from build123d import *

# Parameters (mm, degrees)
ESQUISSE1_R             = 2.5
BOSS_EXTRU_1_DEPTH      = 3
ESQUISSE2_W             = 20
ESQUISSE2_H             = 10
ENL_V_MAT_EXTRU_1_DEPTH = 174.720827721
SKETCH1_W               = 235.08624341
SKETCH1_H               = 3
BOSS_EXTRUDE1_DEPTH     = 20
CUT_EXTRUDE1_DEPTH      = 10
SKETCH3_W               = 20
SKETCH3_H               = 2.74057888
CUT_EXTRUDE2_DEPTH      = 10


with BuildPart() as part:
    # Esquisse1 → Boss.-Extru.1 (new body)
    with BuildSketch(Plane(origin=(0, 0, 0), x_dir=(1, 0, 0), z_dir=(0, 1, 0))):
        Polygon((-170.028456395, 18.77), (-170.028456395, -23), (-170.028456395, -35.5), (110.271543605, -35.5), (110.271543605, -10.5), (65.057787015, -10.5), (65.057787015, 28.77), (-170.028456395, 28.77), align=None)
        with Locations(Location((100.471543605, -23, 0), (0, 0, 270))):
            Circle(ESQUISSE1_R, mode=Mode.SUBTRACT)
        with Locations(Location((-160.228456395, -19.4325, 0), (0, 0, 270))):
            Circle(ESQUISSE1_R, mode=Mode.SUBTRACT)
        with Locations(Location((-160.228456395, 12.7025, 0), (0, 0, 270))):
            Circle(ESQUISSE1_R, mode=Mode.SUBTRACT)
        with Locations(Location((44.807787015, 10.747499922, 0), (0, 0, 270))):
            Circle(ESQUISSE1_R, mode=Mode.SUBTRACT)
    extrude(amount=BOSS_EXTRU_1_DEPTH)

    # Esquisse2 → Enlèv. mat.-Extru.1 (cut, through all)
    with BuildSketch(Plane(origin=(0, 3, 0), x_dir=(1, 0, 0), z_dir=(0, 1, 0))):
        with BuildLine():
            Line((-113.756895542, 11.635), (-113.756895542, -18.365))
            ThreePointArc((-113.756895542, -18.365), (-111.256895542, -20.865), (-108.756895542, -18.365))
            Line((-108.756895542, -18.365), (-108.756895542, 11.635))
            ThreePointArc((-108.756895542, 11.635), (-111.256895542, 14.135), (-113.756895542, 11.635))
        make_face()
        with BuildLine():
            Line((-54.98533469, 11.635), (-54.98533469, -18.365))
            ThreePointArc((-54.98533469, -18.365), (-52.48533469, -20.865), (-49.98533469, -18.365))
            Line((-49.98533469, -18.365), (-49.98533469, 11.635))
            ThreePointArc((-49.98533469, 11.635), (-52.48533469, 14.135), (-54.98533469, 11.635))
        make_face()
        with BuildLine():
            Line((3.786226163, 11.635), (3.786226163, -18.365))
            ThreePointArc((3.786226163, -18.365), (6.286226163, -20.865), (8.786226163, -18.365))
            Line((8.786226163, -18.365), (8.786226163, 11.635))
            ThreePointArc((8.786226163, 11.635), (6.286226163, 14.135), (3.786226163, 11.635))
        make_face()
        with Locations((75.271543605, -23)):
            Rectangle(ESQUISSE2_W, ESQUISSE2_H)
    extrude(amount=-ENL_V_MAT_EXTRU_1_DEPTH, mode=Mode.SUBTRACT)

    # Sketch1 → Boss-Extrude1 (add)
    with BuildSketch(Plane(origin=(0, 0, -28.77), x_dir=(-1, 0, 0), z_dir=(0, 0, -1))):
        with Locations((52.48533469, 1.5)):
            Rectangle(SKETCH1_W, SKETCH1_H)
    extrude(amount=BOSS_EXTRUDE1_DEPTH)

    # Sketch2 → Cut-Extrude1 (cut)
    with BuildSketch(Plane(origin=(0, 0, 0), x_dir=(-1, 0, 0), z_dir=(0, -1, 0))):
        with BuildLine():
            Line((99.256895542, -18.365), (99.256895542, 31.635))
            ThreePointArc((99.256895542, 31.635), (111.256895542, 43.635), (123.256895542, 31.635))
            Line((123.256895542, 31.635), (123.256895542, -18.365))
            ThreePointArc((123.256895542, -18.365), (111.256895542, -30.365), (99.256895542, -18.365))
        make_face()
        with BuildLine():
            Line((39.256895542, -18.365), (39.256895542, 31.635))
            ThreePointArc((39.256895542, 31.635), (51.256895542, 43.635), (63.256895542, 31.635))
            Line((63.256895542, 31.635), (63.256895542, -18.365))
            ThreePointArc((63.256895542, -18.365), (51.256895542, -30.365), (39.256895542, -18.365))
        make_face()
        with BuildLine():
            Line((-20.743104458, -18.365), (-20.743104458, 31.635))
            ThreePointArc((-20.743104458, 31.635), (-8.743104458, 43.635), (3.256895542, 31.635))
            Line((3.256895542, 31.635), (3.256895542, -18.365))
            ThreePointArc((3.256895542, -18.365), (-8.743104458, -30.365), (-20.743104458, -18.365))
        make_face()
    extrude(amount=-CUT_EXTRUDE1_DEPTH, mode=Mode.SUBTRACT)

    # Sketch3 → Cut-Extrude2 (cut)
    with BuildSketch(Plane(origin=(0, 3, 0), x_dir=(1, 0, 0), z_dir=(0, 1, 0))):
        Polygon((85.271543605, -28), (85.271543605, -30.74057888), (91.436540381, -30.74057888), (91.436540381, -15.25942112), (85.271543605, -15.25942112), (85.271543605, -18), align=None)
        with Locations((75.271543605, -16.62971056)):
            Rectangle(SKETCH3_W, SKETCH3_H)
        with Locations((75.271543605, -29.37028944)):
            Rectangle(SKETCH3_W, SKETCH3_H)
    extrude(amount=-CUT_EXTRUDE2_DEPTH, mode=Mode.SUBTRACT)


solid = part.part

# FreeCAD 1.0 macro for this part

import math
import FreeCAD as App
import Part
import Sketcher

V = App.Vector


def add_polygon(sketch, points):
    """Adds a closed chain of lines whose ends are joined by coincident constraints."""
    first, n = sketch.GeometryCount, len(points)
    for a, b in zip(points, points[1:] + points[:1]):
        sketch.addGeometry(Part.LineSegment(App.Vector(*a, 0), App.Vector(*b, 0)), False)
    for i in range(n):
        sketch.addConstraint(Sketcher.Constraint("Coincident", first + i, 2, first + (i + 1) % n, 1))

doc = App.newDocument("Part")
params = doc.addObject("Spreadsheet::Sheet", "Params")
for row, (alias, value) in enumerate([
    ("sketch1_diameter", "5 mm"),
    ("sketch1_height", "25 mm"),
    ("sketch1_width", "280.3 mm"),
    ("sketch1_height2", "39.27 mm"),
    ("pad1_length", "3 mm"),
    ("sketch2_radius", "2.5 mm"),
    ("sketch2_width", "20 mm"),
    ("sketch2_height", "30 mm"),
    ("sketch2_height2", "10 mm"),
    ("sketch3_height", "3 mm"),
    ("pad2_length", "20 mm"),
    ("sketch4_radius", "12 mm"),
    ("sketch4_height", "50 mm"),
    ("pocket2_length", "10 mm"),
    ("sketch5_width", "20 mm"),
    ("sketch5_height", "10 mm"),
    ("pocket3_length", "10 mm"),
], start=1):
    params.set(f"A{row}", alias)
    params.set(f"B{row}", "=" + value)
    params.setAlias(f"B{row}", alias)

body = doc.addObject("PartDesign::Body", "Body")

# Sketch on XZ plane
sketch1 = body.newObject("Sketcher::SketchObject", "Sketch")
sketch1.AttachmentSupport = (doc.getObject("XZ_Plane"), [""])
sketch1.MapMode = "FlatFace"
add_polygon(sketch1, [(-170, 35.5), (110.3, 35.5), (110.3, 10.5), (65.1, 10.5), (65.1, -28.8), (-170, -28.8)])  # lines 0-5
sketch1.addGeometry(Part.Circle(V(-160.2, 19.4, 0), V(0, 0, 1), 2.5), False)  # 6
sketch1.addGeometry(Part.Circle(V(100.5, 23, 0), V(0, 0, 1), 2.5), False)  # 7
sketch1.addGeometry(Part.Circle(V(-160.2, -12.7, 0), V(0, 0, 1), 2.5), False)  # 8
sketch1.addGeometry(Part.Circle(V(44.8, -10.7, 0), V(0, 0, 1), 2.5), False)  # 9
sketch1.addConstraint([
    Sketcher.Constraint("Horizontal", 0),
    Sketcher.Constraint("Vertical", 1),
    Sketcher.Constraint("Horizontal", 2),
    Sketcher.Constraint("Vertical", 3),
    Sketcher.Constraint("Horizontal", 4),
    Sketcher.Constraint("Vertical", 5),
    Sketcher.Constraint("Equal", 6, 7),
    Sketcher.Constraint("Equal", 7, 8),
    Sketcher.Constraint("Equal", 8, 9),
    Sketcher.Constraint("Vertical", 6, 3, 8, 3),
    Sketcher.Constraint("Diameter", 6, 5.0),
    Sketcher.Constraint("DistanceY", 1, 2, 1, 1, 25.0),
    Sketcher.Constraint("DistanceX", 0, 1, 0, 2, 280.3),
    Sketcher.Constraint("DistanceY", -1, 1, 7, 3, 23.0),
    Sketcher.Constraint("DistanceY", 3, 2, 3, 1, 39.27),
    Sketcher.Constraint("DistanceY", -1, 1, 0, 2, 35.5),
    Sketcher.Constraint("DistanceX", 6, 3, 7, 3, 260.7),
    Sketcher.Constraint("DistanceX", 7, 3, 0, 2, 9.8),
    Sketcher.Constraint("DistanceY", 9, 3, 6, 3, 30.18),
    Sketcher.Constraint("DistanceX", 9, 3, 2, 2, 20.25),
    Sketcher.Constraint("DistanceY", 8, 3, 6, 3, 32.135),
    Sketcher.Constraint("DistanceY", -1, 1, 6, 3, 19.4325),
    Sketcher.Constraint("DistanceX", 2, 2, 2, 1, 45.213757),
    Sketcher.Constraint("DistanceX", 6, 3, -1, 1, 160.228456),
])
sketch1.setExpression("Constraints[16]", "Params.sketch1_diameter")
sketch1.setExpression("Constraints[17]", "Params.sketch1_height")
sketch1.setExpression("Constraints[18]", "Params.sketch1_width")
sketch1.setExpression("Constraints[20]", "Params.sketch1_height2")
pad1 = body.newObject("PartDesign::Pad", "Pad")
pad1.Profile = sketch1
pad1.setExpression("Length", "Params.pad1_length")
pad1.Reversed = True

# Sketch on XZ plane
sketch2 = body.newObject("Sketcher::SketchObject", "Sketch001")
sketch2.AttachmentSupport = (doc.getObject("XZ_Plane"), [""])
sketch2.MapMode = "FlatFace"
sketch2.AttachmentOffset = App.Placement(V(0, 0, -3), App.Rotation())
sketch2.addGeometry(Part.LineSegment(V(-113.8, -11.6, 0), V(-113.8, 18.4, 0)), False)  # 0
sketch2.addGeometry(Part.ArcOfCircle(Part.Circle(V(-111.3, 18.4, 0), V(0, 0, 1), 2.5), math.radians(0), math.radians(180)), False)  # 1
sketch2.addGeometry(Part.LineSegment(V(-108.8, 18.4, 0), V(-108.8, -11.6, 0)), False)  # 2
sketch2.addGeometry(Part.ArcOfCircle(Part.Circle(V(-111.3, -11.6, 0), V(0, 0, 1), 2.5), math.radians(180), math.radians(360)), False)  # 3
sketch2.addGeometry(Part.LineSegment(V(-55, -11.6, 0), V(-55, 18.4, 0)), False)  # 4
sketch2.addGeometry(Part.ArcOfCircle(Part.Circle(V(-52.5, 18.4, 0), V(0, 0, 1), 2.5), math.radians(0), math.radians(180)), False)  # 5
sketch2.addGeometry(Part.LineSegment(V(-50, 18.4, 0), V(-50, -11.6, 0)), False)  # 6
sketch2.addGeometry(Part.ArcOfCircle(Part.Circle(V(-52.5, -11.6, 0), V(0, 0, 1), 2.5), math.radians(180), math.radians(360)), False)  # 7
sketch2.addGeometry(Part.LineSegment(V(3.8, -11.6, 0), V(3.8, 18.4, 0)), False)  # 8
sketch2.addGeometry(Part.ArcOfCircle(Part.Circle(V(6.3, 18.4, 0), V(0, 0, 1), 2.5), math.radians(0), math.radians(180)), False)  # 9
sketch2.addGeometry(Part.LineSegment(V(8.8, 18.4, 0), V(8.8, -11.6, 0)), False)  # 10
sketch2.addGeometry(Part.ArcOfCircle(Part.Circle(V(6.3, -11.6, 0), V(0, 0, 1), 2.5), math.radians(180), math.radians(360)), False)  # 11
add_polygon(sketch2, [(65.3, 18), (65.3, 28), (85.3, 28), (85.3, 18)])  # lines 12-15
sketch2.addConstraint([
    Sketcher.Constraint("Tangent", 0, 2, 1, 2),
    Sketcher.Constraint("Tangent", 1, 1, 2, 1),
    Sketcher.Constraint("Tangent", 2, 2, 3, 2),
    Sketcher.Constraint("Tangent", 3, 1, 0, 1),
    Sketcher.Constraint("Tangent", 4, 2, 5, 2),
    Sketcher.Constraint("Tangent", 5, 1, 6, 1),
    Sketcher.Constraint("Tangent", 6, 2, 7, 2),
    Sketcher.Constraint("Tangent", 7, 1, 4, 1),
    Sketcher.Constraint("Tangent", 8, 2, 9, 2),
    Sketcher.Constraint("Tangent", 9, 1, 10, 1),
    Sketcher.Constraint("Tangent", 10, 2, 11, 2),
    Sketcher.Constraint("Tangent", 11, 1, 8, 1),
    Sketcher.Constraint("Vertical", 0),
    Sketcher.Constraint("Vertical", 2),
    Sketcher.Constraint("Vertical", 4),
    Sketcher.Constraint("Vertical", 6),
    Sketcher.Constraint("Vertical", 8),
    Sketcher.Constraint("Vertical", 10),
    Sketcher.Constraint("Vertical", 12),
    Sketcher.Constraint("Horizontal", 13),
    Sketcher.Constraint("Vertical", 14),
    Sketcher.Constraint("Horizontal", 15),
    Sketcher.Constraint("Equal", 3, 5),
    Sketcher.Constraint("Equal", 7, 9),
    Sketcher.Constraint("Horizontal", 1, 3, 5, 3),
    Sketcher.Constraint("Horizontal", 3, 3, 7, 3),
    Sketcher.Constraint("Horizontal", 5, 3, 9, 3),
    Sketcher.Constraint("Horizontal", 7, 3, 11, 3),
    Sketcher.Constraint("Radius", 1, 2.5),
    Sketcher.Constraint("DistanceX", 13, 1, 13, 2, 20.0),
    Sketcher.Constraint("DistanceY", 0, 1, 0, 2, 30.0),
    Sketcher.Constraint("DistanceY", 12, 1, 12, 2, 10.0),
    Sketcher.Constraint("DistanceY", -1, 1, 12, 2, 28.0),
    Sketcher.Constraint("DistanceY", -1, 1, 1, 3, 18.365),
    Sketcher.Constraint("DistanceX", 1, 3, 5, 3, 58.771561),
    Sketcher.Constraint("DistanceX", 5, 3, 9, 3, 58.771561),
    Sketcher.Constraint("DistanceX", 1, 3, -1, 1, 111.256896),
    Sketcher.Constraint("DistanceX", -1, 1, 12, 2, 65.271544),
])
sketch2.setExpression("Constraints[32]", "Params.sketch2_radius")
sketch2.setExpression("Constraints[33]", "Params.sketch2_width")
sketch2.setExpression("Constraints[34]", "Params.sketch2_height")
sketch2.setExpression("Constraints[35]", "Params.sketch2_height2")
pocket1 = body.newObject("PartDesign::Pocket", "Pocket")
pocket1.Profile = sketch2
pocket1.Type = "ThroughAll"
pocket1.Reversed = True

# Sketch on XY plane
sketch3 = body.newObject("Sketcher::SketchObject", "Sketch002")
sketch3.AttachmentSupport = (doc.getObject("XY_Plane"), [""])
sketch3.MapMode = "FlatFace"
sketch3.AttachmentOffset = App.Placement(V(0, 0, -28.77), App.Rotation())
add_polygon(sketch3, [(65.1, 3), (65.1, 0), (-170, 0), (-170, 3)])  # lines 0-3
sketch3.addConstraint([
    Sketcher.Constraint("Vertical", 0),
    Sketcher.Constraint("Horizontal", 1),
    Sketcher.Constraint("Vertical", 2),
    Sketcher.Constraint("Horizontal", 3),
    Sketcher.Constraint("PointOnObject", 0, 2, -1),
    Sketcher.Constraint("DistanceY", 0, 2, 0, 1, 3.0),
    Sketcher.Constraint("DistanceX", 1, 2, 1, 1, 235.086243),
    Sketcher.Constraint("DistanceX", -1, 1, 0, 2, 65.057787),
])
sketch3.setExpression("Constraints[9]", "Params.sketch3_height")
pad2 = body.newObject("PartDesign::Pad", "Pad001")
pad2.Profile = sketch3
pad2.setExpression("Length", "Params.pad2_length")
pad2.Reversed = True

# Sketch on XZ plane
sketch4 = body.newObject("Sketcher::SketchObject", "Sketch003")
sketch4.AttachmentSupport = (doc.getObject("XZ_Plane"), [""])
sketch4.MapMode = "FlatFace"
sketch4.addGeometry([
    Part.LineSegment(V(-99, -32, 0), V(-99, 18, 0)),  # 0
    Part.ArcOfCircle(Part.Circle(V(-111, 18, 0), V(0, 0, 1), 12), math.radians(0), math.radians(180)),  # 1
    Part.LineSegment(V(-123, 18, 0), V(-123, -32, 0)),  # 2
    Part.ArcOfCircle(Part.Circle(V(-111, -32, 0), V(0, 0, 1), 12), math.radians(180), math.radians(360)),  # 3
    Part.LineSegment(V(-39, -32, 0), V(-39, 18, 0)),  # 4
    Part.ArcOfCircle(Part.Circle(V(-51, 18, 0), V(0, 0, 1), 12), math.radians(0), math.radians(180)),  # 5
    Part.LineSegment(V(-63, 18, 0), V(-63, -32, 0)),  # 6
    Part.ArcOfCircle(Part.Circle(V(-51, -32, 0), V(0, 0, 1), 12), math.radians(180), math.radians(360)),  # 7
    Part.LineSegment(V(21, -32, 0), V(21, 18, 0)),  # 8
    Part.ArcOfCircle(Part.Circle(V(9, 18, 0), V(0, 0, 1), 12), math.radians(0), math.radians(180)),  # 9
    Part.LineSegment(V(-3, 18, 0), V(-3, -32, 0)),  # 10
    Part.ArcOfCircle(Part.Circle(V(9, -32, 0), V(0, 0, 1), 12), math.radians(180), math.radians(360)),  # 11
], False)
sketch4.addConstraint([
    Sketcher.Constraint("Tangent", 0, 2, 1, 1),
    Sketcher.Constraint("Tangent", 1, 2, 2, 1),
    Sketcher.Constraint("Tangent", 2, 2, 3, 1),
    Sketcher.Constraint("Tangent", 3, 2, 0, 1),
    Sketcher.Constraint("Tangent", 4, 2, 5, 1),
    Sketcher.Constraint("Tangent", 5, 2, 6, 1),
    Sketcher.Constraint("Tangent", 6, 2, 7, 1),
    Sketcher.Constraint("Tangent", 7, 2, 4, 1),
    Sketcher.Constraint("Tangent", 8, 2, 9, 1),
    Sketcher.Constraint("Tangent", 9, 2, 10, 1),
    Sketcher.Constraint("Tangent", 10, 2, 11, 1),
    Sketcher.Constraint("Tangent", 11, 2, 8, 1),
    Sketcher.Constraint("Vertical", 0),
    Sketcher.Constraint("Vertical", 2),
    Sketcher.Constraint("Vertical", 4),
    Sketcher.Constraint("Vertical", 6),
    Sketcher.Constraint("Vertical", 8),
    Sketcher.Constraint("Vertical", 10),
    Sketcher.Constraint("Equal", 3, 5),
    Sketcher.Constraint("Equal", 7, 9),
    Sketcher.Constraint("Horizontal", 1, 3, 5, 3),
    Sketcher.Constraint("Horizontal", 3, 3, 7, 3),
    Sketcher.Constraint("Horizontal", 5, 3, 9, 3),
    Sketcher.Constraint("Horizontal", 7, 3, 11, 3),
    Sketcher.Constraint("Radius", 1, 12.0),
    Sketcher.Constraint("DistanceY", 0, 1, 0, 2, 50.0),
    Sketcher.Constraint("DistanceX", 1, 3, 5, 3, 60.0),
    Sketcher.Constraint("DistanceX", 5, 3, 9, 3, 60.0),
    Sketcher.Constraint("DistanceY", -1, 1, 1, 3, 18.365),
    Sketcher.Constraint("DistanceX", 1, 3, -1, 1, 111.256896),
])
sketch4.setExpression("Constraints[24]", "Params.sketch4_radius")
sketch4.setExpression("Constraints[25]", "Params.sketch4_height")
pocket2 = body.newObject("PartDesign::Pocket", "Pocket001")
pocket2.Profile = sketch4
pocket2.setExpression("Length", "Params.pocket2_length")

# Sketch on XZ plane
sketch5 = body.newObject("Sketcher::SketchObject", "Sketch004")
sketch5.AttachmentSupport = (doc.getObject("XZ_Plane"), [""])
sketch5.MapMode = "FlatFace"
sketch5.AttachmentOffset = App.Placement(V(0, 0, -3), App.Rotation())
add_polygon(sketch5, [(91.4, 30.7), (91.4, 15.3), (65.3, 15.3), (65.3, 18), (85.3, 18), (85.3, 28), (65.3, 28), (65.3, 30.7)])  # lines 0-7
sketch5.addConstraint([
    Sketcher.Constraint("Vertical", 0),
    Sketcher.Constraint("Horizontal", 1),
    Sketcher.Constraint("Vertical", 2),
    Sketcher.Constraint("Horizontal", 3),
    Sketcher.Constraint("Vertical", 4),
    Sketcher.Constraint("Horizontal", 5),
    Sketcher.Constraint("Vertical", 6),
    Sketcher.Constraint("Horizontal", 7),
    Sketcher.Constraint("Vertical", 2, 2, 5, 2),
    Sketcher.Constraint("Equal", 2, 6),
    Sketcher.Constraint("DistanceX", 3, 1, 3, 2, 20.0),
    Sketcher.Constraint("DistanceY", 4, 1, 4, 2, 10.0),
    Sketcher.Constraint("DistanceY", -1, 1, 2, 2, 18.0),
    Sketcher.Constraint("DistanceY", 2, 1, 2, 2, 2.740579),
    Sketcher.Constraint("DistanceX", 1, 2, 1, 1, 26.164997),
    Sketcher.Constraint("DistanceX", -1, 1, 0, 2, 91.43654),
])
sketch5.setExpression("Constraints[18]", "Params.sketch5_width")
sketch5.setExpression("Constraints[19]", "Params.sketch5_height")
pocket3 = body.newObject("PartDesign::Pocket", "Pocket002")
pocket3.Profile = sketch5
pocket3.setExpression("Length", "Params.pocket3_length")
pocket3.Reversed = True

doc.recompute()
